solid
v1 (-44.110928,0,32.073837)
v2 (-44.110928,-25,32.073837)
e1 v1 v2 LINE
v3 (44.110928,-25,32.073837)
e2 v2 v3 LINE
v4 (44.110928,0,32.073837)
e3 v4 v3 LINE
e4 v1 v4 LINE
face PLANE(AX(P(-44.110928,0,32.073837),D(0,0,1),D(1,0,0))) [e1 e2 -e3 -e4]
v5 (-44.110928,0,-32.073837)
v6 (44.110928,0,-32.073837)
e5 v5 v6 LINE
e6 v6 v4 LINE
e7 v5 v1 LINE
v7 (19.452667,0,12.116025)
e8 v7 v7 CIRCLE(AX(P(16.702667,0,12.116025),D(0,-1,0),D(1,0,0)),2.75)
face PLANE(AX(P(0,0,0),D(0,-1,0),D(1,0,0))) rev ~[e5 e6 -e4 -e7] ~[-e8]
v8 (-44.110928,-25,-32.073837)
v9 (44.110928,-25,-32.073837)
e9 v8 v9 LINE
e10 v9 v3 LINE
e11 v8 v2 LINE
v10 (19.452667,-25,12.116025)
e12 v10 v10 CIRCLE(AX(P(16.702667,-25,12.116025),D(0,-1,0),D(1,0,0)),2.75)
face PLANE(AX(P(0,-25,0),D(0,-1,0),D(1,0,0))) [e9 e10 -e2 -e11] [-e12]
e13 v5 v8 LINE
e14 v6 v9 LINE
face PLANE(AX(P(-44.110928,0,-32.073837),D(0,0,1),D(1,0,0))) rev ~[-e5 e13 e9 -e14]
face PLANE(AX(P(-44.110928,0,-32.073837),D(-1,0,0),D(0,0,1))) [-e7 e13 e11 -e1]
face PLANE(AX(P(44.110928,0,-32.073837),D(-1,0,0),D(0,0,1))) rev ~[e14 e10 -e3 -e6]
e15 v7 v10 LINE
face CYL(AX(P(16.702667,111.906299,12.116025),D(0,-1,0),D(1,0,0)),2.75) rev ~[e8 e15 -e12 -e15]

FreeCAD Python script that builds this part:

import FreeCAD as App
import Part
import Sketcher

doc = App.newDocument("Part")
body = doc.addObject("PartDesign::Body", "Body")

# Sketch on XZ plane
sketch1 = body.newObject("Sketcher::SketchObject", "Sketch")
sketch1.AttachmentSupport = (doc.getObject("XZ_Plane"), [""])
sketch1.MapMode = "FlatFace"
sketch1.addGeometry(Part.LineSegment(App.Vector(-44, 32, 0), App.Vector(-44, -32, 0)), False)
sketch1.addGeometry(Part.LineSegment(App.Vector(-44, -32, 0), App.Vector(44, -32, 0)), False)
sketch1.addGeometry(Part.LineSegment(App.Vector(44, -32, 0), App.Vector(44, 32, 0)), False)
sketch1.addGeometry(Part.LineSegment(App.Vector(44, 32, 0), App.Vector(-44, 32, 0)), False)
sketch1.addConstraint(Sketcher.Constraint("Coincident", 0, 2, 1, 1))
sketch1.addConstraint(Sketcher.Constraint("Coincident", 1, 2, 2, 1))
sketch1.addConstraint(Sketcher.Constraint("Coincident", 2, 2, 3, 1))
sketch1.addConstraint(Sketcher.Constraint("Coincident", 3, 2, 0, 1))
sketch1.addConstraint(Sketcher.Constraint("Vertical", 0))
sketch1.addConstraint(Sketcher.Constraint("Horizontal", 1))
sketch1.addConstraint(Sketcher.Constraint("Vertical", 2))
sketch1.addConstraint(Sketcher.Constraint("Horizontal", 3))
sketch1.addConstraint(Sketcher.Constraint("Symmetric", 0, 2, 2, 2, -1, 1))
sketch1.addConstraint(Sketcher.Constraint("DistanceX", 1, 1, 1, 2, 88.221855))
sketch1.addConstraint(Sketcher.Constraint("DistanceY", 0, 2, 0, 1, 64.147674))
pad1 = body.newObject("PartDesign::Pad", "Pad")
pad1.Profile = sketch1
pad1.Length = 25

# Sketch on XZ plane
sketch2 = body.newObject("Sketcher::SketchObject", "Sketch001")
sketch2.AttachmentSupport = (doc.getObject("XZ_Plane"), [""])
sketch2.MapMode = "FlatFace"
sketch2.addGeometry(Part.Circle(App.Vector(16.7, 12.1, 0), App.Vector(0, 0, 1), 2.8), False)
sketch2.addConstraint(Sketcher.Constraint("Diameter", 0, 5.5))
sketch2.addConstraint(Sketcher.Constraint("DistanceX", -1, 1, 0, 3, 16.702667))
sketch2.addConstraint(Sketcher.Constraint("DistanceY", -1, 1, 0, 3, 12.116025))
doc.recompute()
hole = body.newObject("PartDesign::Hole", "Hole")
hole.Profile = sketch2
hole.ThreadType = "None"
hole.Diameter = 5.5
hole.DepthType = "ThroughAll"
hole.Reversed = True

doc.recompute()
